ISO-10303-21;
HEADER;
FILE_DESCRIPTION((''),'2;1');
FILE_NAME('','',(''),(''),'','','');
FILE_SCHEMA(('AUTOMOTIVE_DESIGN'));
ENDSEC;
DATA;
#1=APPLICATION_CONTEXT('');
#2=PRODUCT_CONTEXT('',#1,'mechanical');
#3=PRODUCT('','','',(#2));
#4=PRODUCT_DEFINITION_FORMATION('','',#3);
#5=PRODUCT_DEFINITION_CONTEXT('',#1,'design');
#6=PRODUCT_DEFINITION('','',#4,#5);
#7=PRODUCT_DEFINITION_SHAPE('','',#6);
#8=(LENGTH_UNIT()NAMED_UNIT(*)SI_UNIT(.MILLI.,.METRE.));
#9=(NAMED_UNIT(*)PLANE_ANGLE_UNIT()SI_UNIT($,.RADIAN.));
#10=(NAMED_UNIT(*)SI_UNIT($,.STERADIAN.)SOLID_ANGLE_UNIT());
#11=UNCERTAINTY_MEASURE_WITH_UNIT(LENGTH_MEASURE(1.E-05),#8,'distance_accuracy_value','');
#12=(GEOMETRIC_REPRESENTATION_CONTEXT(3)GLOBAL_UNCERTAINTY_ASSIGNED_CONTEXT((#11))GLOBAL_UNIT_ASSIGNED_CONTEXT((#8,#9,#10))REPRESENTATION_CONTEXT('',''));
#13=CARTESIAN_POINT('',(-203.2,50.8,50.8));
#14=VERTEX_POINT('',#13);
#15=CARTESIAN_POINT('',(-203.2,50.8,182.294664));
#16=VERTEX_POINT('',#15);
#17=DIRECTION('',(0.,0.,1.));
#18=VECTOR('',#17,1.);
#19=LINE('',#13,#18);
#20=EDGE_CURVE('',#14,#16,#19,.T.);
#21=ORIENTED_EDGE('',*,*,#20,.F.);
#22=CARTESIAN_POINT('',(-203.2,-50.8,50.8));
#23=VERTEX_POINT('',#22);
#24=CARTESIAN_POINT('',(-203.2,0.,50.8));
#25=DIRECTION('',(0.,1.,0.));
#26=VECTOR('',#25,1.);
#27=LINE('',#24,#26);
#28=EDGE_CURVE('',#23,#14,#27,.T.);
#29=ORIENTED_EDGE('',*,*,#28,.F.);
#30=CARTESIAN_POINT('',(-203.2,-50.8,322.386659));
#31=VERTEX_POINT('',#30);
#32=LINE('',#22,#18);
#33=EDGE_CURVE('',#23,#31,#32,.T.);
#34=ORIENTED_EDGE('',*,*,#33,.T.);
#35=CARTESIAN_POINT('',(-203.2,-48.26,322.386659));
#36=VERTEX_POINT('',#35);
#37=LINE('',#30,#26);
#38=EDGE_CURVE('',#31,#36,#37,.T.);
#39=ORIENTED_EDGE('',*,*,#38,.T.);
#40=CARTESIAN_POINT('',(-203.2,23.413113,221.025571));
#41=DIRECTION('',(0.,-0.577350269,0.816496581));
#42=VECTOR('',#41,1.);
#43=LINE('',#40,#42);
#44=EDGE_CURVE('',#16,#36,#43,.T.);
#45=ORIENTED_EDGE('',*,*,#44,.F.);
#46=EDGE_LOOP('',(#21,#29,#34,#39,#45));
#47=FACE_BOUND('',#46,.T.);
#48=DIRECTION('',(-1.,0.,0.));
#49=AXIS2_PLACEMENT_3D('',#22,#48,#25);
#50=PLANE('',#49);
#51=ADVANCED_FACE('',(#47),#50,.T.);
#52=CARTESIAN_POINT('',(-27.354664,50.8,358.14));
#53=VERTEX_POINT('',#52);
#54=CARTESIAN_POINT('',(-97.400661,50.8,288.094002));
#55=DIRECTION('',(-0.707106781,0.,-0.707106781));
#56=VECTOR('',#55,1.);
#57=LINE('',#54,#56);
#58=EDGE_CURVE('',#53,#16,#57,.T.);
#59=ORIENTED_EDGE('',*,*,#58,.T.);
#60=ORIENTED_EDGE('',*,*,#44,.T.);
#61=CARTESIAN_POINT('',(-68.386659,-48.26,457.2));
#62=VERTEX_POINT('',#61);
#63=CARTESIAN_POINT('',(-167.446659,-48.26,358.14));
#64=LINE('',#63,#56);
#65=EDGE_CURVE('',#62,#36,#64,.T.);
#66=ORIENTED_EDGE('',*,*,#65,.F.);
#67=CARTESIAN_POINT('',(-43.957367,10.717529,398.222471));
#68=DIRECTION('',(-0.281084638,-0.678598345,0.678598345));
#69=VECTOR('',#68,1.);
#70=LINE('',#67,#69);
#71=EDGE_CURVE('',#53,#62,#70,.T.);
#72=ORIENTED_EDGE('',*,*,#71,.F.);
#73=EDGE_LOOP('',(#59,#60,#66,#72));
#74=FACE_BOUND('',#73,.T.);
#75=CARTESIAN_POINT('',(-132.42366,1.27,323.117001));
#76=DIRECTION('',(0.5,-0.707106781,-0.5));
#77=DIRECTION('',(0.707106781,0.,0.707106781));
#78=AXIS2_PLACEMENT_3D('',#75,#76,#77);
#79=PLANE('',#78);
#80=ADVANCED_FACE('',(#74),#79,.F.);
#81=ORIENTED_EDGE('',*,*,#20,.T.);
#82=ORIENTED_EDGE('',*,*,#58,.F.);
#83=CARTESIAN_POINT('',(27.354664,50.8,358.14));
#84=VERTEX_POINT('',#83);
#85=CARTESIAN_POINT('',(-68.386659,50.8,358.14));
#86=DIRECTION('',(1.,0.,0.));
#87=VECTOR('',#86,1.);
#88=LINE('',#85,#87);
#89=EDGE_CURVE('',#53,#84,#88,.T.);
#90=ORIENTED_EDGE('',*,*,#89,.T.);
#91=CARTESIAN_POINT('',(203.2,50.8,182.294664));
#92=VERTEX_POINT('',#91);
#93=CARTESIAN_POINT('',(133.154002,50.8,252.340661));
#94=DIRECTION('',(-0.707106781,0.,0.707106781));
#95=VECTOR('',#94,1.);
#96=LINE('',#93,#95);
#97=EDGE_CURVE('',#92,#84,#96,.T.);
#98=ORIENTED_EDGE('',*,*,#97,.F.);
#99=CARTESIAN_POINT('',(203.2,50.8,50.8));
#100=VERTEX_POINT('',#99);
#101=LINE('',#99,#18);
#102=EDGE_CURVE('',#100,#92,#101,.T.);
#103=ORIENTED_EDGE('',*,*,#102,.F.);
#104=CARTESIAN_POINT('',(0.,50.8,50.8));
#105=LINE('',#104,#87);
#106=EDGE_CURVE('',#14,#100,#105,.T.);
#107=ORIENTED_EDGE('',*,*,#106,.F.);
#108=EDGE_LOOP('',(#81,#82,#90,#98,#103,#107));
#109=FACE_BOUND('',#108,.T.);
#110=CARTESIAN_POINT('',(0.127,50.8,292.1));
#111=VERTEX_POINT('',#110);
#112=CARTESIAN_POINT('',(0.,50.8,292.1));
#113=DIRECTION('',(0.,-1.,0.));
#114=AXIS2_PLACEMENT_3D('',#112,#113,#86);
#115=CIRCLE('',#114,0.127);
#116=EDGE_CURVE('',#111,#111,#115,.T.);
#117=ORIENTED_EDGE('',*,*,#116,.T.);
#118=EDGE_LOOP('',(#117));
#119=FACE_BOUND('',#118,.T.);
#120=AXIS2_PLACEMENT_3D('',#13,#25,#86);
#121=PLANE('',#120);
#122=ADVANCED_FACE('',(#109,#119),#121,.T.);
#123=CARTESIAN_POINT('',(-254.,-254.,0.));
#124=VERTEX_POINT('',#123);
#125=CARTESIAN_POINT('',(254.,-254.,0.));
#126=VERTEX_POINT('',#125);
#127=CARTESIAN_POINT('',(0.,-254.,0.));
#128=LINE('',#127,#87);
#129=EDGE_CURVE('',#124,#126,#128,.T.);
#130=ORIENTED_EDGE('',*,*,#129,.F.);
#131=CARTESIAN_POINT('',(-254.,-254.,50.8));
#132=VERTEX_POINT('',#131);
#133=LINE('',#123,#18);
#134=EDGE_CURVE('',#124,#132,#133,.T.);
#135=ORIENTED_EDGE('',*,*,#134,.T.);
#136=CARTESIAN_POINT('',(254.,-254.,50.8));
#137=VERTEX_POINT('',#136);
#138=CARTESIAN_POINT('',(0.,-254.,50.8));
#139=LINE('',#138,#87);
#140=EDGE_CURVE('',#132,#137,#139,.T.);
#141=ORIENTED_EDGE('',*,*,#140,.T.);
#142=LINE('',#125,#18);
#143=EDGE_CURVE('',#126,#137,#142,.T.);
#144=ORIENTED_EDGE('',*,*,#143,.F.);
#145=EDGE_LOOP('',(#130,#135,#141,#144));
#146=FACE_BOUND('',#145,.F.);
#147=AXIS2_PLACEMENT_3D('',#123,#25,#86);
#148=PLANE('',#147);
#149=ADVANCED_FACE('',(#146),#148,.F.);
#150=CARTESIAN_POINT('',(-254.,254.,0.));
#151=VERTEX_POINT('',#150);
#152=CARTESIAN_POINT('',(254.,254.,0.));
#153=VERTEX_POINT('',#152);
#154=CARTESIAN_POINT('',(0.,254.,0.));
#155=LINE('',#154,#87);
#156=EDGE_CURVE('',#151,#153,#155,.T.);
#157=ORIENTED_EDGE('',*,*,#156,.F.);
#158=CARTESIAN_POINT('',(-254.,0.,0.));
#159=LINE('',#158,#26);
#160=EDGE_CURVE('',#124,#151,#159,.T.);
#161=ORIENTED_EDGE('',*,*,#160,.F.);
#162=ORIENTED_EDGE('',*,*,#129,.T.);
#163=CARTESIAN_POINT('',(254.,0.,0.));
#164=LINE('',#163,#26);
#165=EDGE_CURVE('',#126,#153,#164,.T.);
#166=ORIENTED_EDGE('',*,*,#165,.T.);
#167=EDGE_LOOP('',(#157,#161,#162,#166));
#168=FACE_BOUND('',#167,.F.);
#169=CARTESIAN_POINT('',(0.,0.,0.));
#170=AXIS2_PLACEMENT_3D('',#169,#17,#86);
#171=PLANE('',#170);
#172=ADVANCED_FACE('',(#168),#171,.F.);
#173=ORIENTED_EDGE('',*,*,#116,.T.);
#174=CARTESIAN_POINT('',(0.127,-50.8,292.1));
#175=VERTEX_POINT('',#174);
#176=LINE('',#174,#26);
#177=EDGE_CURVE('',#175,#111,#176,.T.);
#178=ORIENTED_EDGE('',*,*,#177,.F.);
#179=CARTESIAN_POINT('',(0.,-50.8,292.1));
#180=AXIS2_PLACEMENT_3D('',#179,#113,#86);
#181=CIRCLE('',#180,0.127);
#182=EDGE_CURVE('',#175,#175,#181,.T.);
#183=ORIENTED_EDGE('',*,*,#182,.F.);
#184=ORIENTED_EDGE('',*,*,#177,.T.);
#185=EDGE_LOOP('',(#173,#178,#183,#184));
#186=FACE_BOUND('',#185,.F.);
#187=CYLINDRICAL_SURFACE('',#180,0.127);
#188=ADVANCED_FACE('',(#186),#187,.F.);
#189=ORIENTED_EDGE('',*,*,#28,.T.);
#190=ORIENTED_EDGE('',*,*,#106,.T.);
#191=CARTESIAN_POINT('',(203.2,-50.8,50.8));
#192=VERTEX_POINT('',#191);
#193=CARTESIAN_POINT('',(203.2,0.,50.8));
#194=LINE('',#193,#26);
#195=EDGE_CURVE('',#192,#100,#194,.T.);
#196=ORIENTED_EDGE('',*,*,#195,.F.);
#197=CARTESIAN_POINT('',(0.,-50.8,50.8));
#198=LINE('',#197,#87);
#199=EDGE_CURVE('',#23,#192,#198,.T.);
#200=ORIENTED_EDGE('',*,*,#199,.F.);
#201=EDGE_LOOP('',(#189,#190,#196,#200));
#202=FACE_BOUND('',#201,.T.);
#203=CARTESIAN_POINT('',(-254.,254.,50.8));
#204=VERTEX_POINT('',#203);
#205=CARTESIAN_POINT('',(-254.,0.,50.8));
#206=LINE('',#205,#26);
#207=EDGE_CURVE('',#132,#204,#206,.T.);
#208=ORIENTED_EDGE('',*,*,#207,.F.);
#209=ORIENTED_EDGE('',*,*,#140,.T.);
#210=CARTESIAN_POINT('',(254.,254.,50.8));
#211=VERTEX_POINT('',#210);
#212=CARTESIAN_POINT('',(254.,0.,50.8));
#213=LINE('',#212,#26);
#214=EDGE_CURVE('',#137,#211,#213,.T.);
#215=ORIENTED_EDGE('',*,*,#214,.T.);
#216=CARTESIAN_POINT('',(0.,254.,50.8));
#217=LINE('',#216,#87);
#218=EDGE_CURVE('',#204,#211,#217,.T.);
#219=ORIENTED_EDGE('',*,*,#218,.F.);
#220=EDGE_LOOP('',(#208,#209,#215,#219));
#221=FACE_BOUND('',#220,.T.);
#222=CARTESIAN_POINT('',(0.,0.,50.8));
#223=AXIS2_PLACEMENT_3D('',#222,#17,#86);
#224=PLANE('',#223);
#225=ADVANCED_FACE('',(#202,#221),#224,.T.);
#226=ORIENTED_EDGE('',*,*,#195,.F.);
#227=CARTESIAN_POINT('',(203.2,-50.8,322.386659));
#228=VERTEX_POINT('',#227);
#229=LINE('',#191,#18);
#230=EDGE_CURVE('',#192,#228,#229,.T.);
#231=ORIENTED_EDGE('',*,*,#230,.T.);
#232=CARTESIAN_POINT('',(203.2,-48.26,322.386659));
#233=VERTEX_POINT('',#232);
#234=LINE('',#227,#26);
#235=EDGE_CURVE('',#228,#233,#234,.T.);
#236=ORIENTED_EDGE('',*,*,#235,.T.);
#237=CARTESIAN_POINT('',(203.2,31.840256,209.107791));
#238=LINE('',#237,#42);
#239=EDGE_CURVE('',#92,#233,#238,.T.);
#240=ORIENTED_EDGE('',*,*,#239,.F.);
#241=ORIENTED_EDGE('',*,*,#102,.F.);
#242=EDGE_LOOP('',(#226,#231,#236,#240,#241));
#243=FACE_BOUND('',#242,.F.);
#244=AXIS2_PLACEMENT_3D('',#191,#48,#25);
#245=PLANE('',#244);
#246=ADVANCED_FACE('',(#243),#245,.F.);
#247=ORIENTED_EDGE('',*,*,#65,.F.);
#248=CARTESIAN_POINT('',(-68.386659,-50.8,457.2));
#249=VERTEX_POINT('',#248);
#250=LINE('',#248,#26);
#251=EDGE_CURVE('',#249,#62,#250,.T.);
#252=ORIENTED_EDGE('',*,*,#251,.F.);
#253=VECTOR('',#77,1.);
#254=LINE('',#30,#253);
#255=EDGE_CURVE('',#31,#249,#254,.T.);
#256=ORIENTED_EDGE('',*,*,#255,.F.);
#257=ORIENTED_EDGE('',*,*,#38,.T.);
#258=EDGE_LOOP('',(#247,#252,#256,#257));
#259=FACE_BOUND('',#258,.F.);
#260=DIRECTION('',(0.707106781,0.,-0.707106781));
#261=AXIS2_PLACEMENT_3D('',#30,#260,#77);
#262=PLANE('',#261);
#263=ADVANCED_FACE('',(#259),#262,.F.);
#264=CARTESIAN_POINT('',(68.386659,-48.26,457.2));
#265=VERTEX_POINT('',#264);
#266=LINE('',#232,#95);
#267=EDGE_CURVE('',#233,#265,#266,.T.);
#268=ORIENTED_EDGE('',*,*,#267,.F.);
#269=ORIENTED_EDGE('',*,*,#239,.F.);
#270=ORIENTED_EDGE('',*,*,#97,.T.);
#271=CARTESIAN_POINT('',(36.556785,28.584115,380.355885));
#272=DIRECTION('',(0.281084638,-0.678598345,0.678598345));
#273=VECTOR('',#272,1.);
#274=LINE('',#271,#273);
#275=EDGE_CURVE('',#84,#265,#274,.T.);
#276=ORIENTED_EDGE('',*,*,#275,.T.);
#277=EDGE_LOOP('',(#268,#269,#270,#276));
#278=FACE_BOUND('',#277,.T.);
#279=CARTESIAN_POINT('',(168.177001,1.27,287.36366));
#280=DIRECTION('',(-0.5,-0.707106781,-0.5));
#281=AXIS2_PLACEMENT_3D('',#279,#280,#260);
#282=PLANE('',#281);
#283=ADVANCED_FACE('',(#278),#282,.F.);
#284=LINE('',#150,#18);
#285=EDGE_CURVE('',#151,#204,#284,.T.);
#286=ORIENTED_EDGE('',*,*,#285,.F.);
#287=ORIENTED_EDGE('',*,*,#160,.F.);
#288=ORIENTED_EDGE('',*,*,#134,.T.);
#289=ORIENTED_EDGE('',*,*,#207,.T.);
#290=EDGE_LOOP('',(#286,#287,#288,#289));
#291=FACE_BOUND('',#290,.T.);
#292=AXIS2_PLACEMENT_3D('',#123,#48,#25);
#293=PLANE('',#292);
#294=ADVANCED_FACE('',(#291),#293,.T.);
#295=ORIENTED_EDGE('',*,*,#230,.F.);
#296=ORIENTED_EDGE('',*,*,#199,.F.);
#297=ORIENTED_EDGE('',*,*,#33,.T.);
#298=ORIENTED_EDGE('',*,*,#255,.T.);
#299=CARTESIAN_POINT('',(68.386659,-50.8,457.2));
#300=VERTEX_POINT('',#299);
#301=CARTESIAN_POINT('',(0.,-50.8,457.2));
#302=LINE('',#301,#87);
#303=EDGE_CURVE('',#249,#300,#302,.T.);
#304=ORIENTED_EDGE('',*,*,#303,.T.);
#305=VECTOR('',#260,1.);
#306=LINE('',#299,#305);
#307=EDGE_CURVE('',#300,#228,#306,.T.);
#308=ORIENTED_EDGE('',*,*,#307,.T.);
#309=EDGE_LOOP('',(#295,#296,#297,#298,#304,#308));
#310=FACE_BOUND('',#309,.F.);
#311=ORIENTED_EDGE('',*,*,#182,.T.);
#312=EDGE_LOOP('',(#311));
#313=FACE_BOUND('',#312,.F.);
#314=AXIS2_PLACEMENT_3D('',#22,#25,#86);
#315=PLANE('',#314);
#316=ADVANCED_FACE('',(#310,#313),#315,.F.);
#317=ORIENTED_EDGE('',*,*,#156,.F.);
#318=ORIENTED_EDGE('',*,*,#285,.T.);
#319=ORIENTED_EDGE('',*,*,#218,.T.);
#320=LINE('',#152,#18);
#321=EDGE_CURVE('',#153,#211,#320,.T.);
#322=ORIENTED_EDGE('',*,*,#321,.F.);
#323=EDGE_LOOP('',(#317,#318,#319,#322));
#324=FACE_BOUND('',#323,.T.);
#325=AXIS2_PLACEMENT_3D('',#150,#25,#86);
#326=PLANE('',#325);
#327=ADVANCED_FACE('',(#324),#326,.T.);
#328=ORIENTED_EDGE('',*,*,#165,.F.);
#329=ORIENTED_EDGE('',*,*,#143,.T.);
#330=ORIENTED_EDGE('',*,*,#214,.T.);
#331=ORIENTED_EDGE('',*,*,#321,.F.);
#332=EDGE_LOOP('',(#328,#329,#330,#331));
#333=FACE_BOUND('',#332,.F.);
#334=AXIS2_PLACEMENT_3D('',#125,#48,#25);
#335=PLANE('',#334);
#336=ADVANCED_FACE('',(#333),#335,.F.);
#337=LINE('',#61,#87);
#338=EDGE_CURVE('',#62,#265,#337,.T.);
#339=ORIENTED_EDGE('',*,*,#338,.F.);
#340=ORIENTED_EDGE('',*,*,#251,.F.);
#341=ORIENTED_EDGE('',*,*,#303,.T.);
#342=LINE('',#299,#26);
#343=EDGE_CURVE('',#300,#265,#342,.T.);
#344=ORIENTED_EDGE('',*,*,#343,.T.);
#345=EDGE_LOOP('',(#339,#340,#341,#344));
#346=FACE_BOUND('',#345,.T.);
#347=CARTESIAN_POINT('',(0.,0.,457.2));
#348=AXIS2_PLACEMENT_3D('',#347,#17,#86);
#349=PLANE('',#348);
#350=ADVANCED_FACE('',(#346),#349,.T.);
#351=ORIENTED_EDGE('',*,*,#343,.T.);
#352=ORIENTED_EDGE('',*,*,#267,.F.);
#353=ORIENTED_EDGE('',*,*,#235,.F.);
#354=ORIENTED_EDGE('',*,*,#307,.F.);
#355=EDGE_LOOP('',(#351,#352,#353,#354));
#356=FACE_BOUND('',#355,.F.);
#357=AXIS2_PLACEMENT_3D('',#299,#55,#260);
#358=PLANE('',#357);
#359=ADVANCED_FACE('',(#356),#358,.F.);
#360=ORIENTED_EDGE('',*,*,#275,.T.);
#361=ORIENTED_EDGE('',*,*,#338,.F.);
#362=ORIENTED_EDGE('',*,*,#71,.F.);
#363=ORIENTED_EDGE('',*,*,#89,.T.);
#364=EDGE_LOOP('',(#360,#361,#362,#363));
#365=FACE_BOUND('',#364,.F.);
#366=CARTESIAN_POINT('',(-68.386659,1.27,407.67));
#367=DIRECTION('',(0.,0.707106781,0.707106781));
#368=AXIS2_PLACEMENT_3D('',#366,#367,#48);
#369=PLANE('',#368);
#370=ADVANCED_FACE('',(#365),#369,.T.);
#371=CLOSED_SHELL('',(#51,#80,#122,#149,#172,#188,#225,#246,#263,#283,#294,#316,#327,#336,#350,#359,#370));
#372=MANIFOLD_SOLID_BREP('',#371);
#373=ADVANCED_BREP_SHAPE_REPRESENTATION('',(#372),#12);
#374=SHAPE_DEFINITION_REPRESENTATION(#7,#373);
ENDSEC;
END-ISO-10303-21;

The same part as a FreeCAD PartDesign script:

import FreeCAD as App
import Part
import Sketcher
from FreeCAD import Vector
Q = App.Units.Quantity


def edges_at(feature, points):
    """Names of the edges that pass closest to the given points."""
    edges = feature.Shape.Edges
    near = lambda p: min(range(len(edges)), key=lambda i: edges[i].distToShape(Part.Vertex(*p))[0])
    return sorted({f"Edge{near(p) + 1}" for p in points})

doc = App.newDocument("Part")
params = doc.addObject("Spreadsheet::Sheet", "Params")
for row, (alias, value) in enumerate([
    ("sketch1_width", "20 in"),
    ("pad1_length", "2 in"),
    ("sketch2_width", "16 in"),
    ("sketch2_height", "4 in"),
    ("pad2_length", "16 in"),
    ("chamfer_size", "3.9 in"),
    ("chamfer2_size", "3.9 in"),
    ("sketch4_diameter", "0.01 in"),
], start=1):
    params.set(f"A{row}", alias)
    params.set(f"B{row}", "=" + value)
    params.setAlias(f"B{row}", alias)

body = doc.addObject("PartDesign::Body", "Body")

# Sketch on XY plane
sketch1 = body.newObject("Sketcher::SketchObject", "Sketch")
sketch1.AttachmentSupport = (doc.getObject("XY_Plane"), [""])
sketch1.MapMode = "FlatFace"
sketch1.addGeometry([
    Part.LineSegment(Vector(-254, 254, 0), Vector(-254, -254, 0)),
    Part.LineSegment(Vector(-254, -254, 0), Vector(254, -254, 0)),
    Part.LineSegment(Vector(254, -254, 0), Vector(254, 254, 0)),
    Part.LineSegment(Vector(254, 254, 0), Vector(-254, 254, 0)),
], False)
sketch1.addConstraint([
    Sketcher.Constraint("Coincident", 0, 2, 1, 1),
    Sketcher.Constraint("Coincident", 1, 2, 2, 1),
    Sketcher.Constraint("Coincident", 2, 2, 3, 1),
    Sketcher.Constraint("Coincident", 3, 2, 0, 1),
    Sketcher.Constraint("Vertical", 0),
    Sketcher.Constraint("Horizontal", 1),
    Sketcher.Constraint("Vertical", 2),
    Sketcher.Constraint("Horizontal", 3),
    Sketcher.Constraint("Symmetric", 0, 2, 2, 2, -1, 1),
    Sketcher.Constraint("Equal", 3, 0),
    Sketcher.Constraint("DistanceX", 1, 1, 1, 2, Q("20 in")),
])
sketch1.setExpression("Constraints[10]", "Params.sketch1_width")
pad1 = body.newObject("PartDesign::Pad", "Pad")
pad1.Profile = sketch1
pad1.setExpression("Length", "Params.pad1_length")

# Sketch on XY plane
sketch2 = body.newObject("Sketcher::SketchObject", "Sketch001")
sketch2.AttachmentSupport = (doc.getObject("XY_Plane"), [""])
sketch2.MapMode = "FlatFace"
sketch2.AttachmentOffset = App.Placement(Vector(0, 0, 2 * 25.4), App.Rotation())
sketch2.addGeometry([
    Part.LineSegment(Vector(-203, 51, 0), Vector(-203, -51, 0)),
    Part.LineSegment(Vector(-203, -51, 0), Vector(203, -51, 0)),
    Part.LineSegment(Vector(203, -51, 0), Vector(203, 51, 0)),
    Part.LineSegment(Vector(203, 51, 0), Vector(-203, 51, 0)),
], False)
sketch2.addConstraint([
    Sketcher.Constraint("Coincident", 0, 2, 1, 1),
    Sketcher.Constraint("Coincident", 1, 2, 2, 1),
    Sketcher.Constraint("Coincident", 2, 2, 3, 1),
    Sketcher.Constraint("Coincident", 3, 2, 0, 1),
    Sketcher.Constraint("Vertical", 0),
    Sketcher.Constraint("Horizontal", 1),
    Sketcher.Constraint("Vertical", 2),
    Sketcher.Constraint("Horizontal", 3),
    Sketcher.Constraint("Symmetric", 0, 2, 2, 2, -1, 1),
    Sketcher.Constraint("DistanceX", 1, 1, 1, 2, Q("16 in")),
    Sketcher.Constraint("DistanceY", 0, 2, 0, 1, Q("4 in")),
])
sketch2.setExpression("Constraints[9]", "Params.sketch2_width")
sketch2.setExpression("Constraints[10]", "Params.sketch2_height")
pad2 = body.newObject("PartDesign::Pad", "Pad001")
pad2.Profile = sketch2
pad2.setExpression("Length", "Params.pad2_length")

# Sketch on XZ plane
sketch3 = body.newObject("Sketcher::SketchObject", "Sketch002")
sketch3.AttachmentSupport = (doc.getObject("XZ_Plane"), [""])
sketch3.MapMode = "FlatFace"
sketch3.AttachmentOffset = App.Placement(Vector(0, 0, 2 * 25.4), App.Rotation())
sketch3.addGeometry([
    Part.LineSegment(Vector(203, 322, 0), Vector(203, 457, 0)),  # 0
    Part.LineSegment(Vector(203, 457, 0), Vector(68, 457, 0)),  # 1
    Part.LineSegment(Vector(68, 457, 0), Vector(203, 322, 0)),  # 2
    Part.LineSegment(Vector(-68, 457, 0), Vector(-203, 457, 0)),  # 3
    Part.LineSegment(Vector(-203, 457, 0), Vector(-203, 322, 0)),  # 4
    Part.LineSegment(Vector(-203, 322, 0), Vector(-68, 457, 0)),  # 5
], False)
sketch3.addConstraint([
    Sketcher.Constraint("Coincident", 0, 2, 1, 1),
    Sketcher.Constraint("Coincident", 1, 2, 2, 1),
    Sketcher.Constraint("Coincident", 2, 2, 0, 1),
    Sketcher.Constraint("Coincident", 3, 2, 4, 1),
    Sketcher.Constraint("Coincident", 4, 2, 5, 1),
    Sketcher.Constraint("Coincident", 5, 2, 3, 1),
    Sketcher.Constraint("Vertical", 0),
    Sketcher.Constraint("Horizontal", 1),
    Sketcher.Constraint("Horizontal", 3),
    Sketcher.Constraint("Vertical", 4),
    Sketcher.Constraint("Symmetric", 0, 2, 3, 2, -2),
    Sketcher.Constraint("Perpendicular", 2, 5),
    Sketcher.Constraint("Horizontal", 2, 2, 4, 2),
    Sketcher.Constraint("Equal", 1, 3),
    Sketcher.Constraint("DistanceX", -1, 1, 0, 2, Q("8 in")),
    Sketcher.Constraint("DistanceY", -1, 1, 0, 2, Q("18 in")),
    Sketcher.Constraint("DistanceX", 1, 2, 1, 1, Q("134.813341 mm")),
])
pocket1 = body.newObject("PartDesign::Pocket", "Pocket")
pocket1.Profile = sketch3
pocket1.Type = "ThroughAll"
doc.recompute()

chamfer = body.newObject("PartDesign::Chamfer", "Chamfer")
chamfer.Base = (pocket1, edges_at(pocket1, [(0, 50.8, 457.2)]))
chamfer.setExpression("Size", "Params.chamfer_size")
doc.recompute()

chamfer2 = body.newObject("PartDesign::Chamfer", "Chamfer001")
chamfer2.Base = (chamfer, edges_at(chamfer, [(185.323, 50.8, 340.263), (-185.323, 50.8, 340.263)]))
chamfer2.setExpression("Size", "Params.chamfer2_size")

# Sketch on XZ plane
sketch4 = body.newObject("Sketcher::SketchObject", "Sketch003")
sketch4.AttachmentSupport = (doc.getObject("XZ_Plane"), [""])
sketch4.MapMode = "FlatFace"
sketch4.AttachmentOffset = App.Placement(Vector(0, 0, 2 * 25.4), App.Rotation())
sketch4.addGeometry(Part.Circle(Vector(0, 292.1, 0), Vector(0, 0, 1), 0.13), False)
sketch4.addConstraint([
    Sketcher.Constraint("PointOnObject", 0, 3, -2),
    Sketcher.Constraint("Diameter", 0, Q("0.01 in")),
    Sketcher.Constraint("DistanceY", -1, 1, 0, 3, Q("11.5 in")),
])
sketch4.setExpression("Constraints[1]", "Params.sketch4_diameter")
pocket2 = body.newObject("PartDesign::Pocket", "Pocket001")
pocket2.Profile = sketch4
pocket2.Type = "ThroughAll"

doc.recompute()
